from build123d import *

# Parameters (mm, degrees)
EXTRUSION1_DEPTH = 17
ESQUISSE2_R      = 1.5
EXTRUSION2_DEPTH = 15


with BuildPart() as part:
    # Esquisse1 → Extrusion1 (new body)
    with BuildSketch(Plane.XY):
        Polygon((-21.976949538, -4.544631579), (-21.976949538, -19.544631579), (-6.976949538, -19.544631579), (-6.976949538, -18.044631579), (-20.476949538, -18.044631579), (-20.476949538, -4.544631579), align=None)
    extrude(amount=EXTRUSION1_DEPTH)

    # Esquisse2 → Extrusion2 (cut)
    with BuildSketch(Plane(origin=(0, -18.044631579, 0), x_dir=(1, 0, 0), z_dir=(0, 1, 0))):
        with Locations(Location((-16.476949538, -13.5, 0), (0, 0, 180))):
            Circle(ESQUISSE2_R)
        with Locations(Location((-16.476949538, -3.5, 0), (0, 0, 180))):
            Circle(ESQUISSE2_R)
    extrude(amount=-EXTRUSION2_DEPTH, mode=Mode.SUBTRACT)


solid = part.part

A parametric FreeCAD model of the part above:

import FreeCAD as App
import Part
import Sketcher
from FreeCAD import Vector

doc = App.newDocument("Part")
body = doc.addObject("PartDesign::Body", "Body")

sketch1 = body.newObject("Sketcher::SketchObject", "Sketch")
sketch1.AttachmentSupport = (doc.getObject("XY_Plane"), [""])
sketch1.MapMode = "FlatFace"
sketch1.addGeometry([
    Part.LineSegment(Vector(-22, -4.5, 0), Vector(-22, -19.5, 0)),
    Part.LineSegment(Vector(-22, -19.5, 0), Vector(-7, -19.5, 0)),
    Part.LineSegment(Vector(-7, -19.5, 0), Vector(-7, -18, 0)),
    Part.LineSegment(Vector(-7, -18, 0), Vector(-20.5, -18, 0)),
    Part.LineSegment(Vector(-20.5, -18, 0), Vector(-20.5, -4.5, 0)),
    Part.LineSegment(Vector(-20.5, -4.5, 0), Vector(-22, -4.5, 0)),
], False)
sketch1.addConstraint([
    Sketcher.Constraint("Coincident", 0, 2, 1, 1),
    Sketcher.Constraint("Coincident", 1, 2, 2, 1),
    Sketcher.Constraint("Coincident", 2, 2, 3, 1),
    Sketcher.Constraint("Coincident", 3, 2, 4, 1),
    Sketcher.Constraint("Coincident", 4, 2, 5, 1),
    Sketcher.Constraint("Coincident", 5, 2, 0, 1),
    Sketcher.Constraint("Vertical", 0),
    Sketcher.Constraint("Horizontal", 1),
    Sketcher.Constraint("Vertical", 2),
    Sketcher.Constraint("Horizontal", 3),
    Sketcher.Constraint("Vertical", 4),
    Sketcher.Constraint("Horizontal", 5),
    Sketcher.Constraint("Equal", 1, 0),
    Sketcher.Constraint("Equal", 5, 2),
    Sketcher.Constraint("DistanceX", 1, 1, 1, 2, 15.0),
    Sketcher.Constraint("DistanceX", 3, 2, 3, 1, 13.5),
    Sketcher.Constraint("DistanceX", 0, 2, -1, 1, 21.97695),
    Sketcher.Constraint("DistanceY", 0, 2, -1, 1, 19.544632),
])
pad1 = body.newObject("PartDesign::Pad", "Pad")
pad1.Profile = sketch1
pad1.Length = 17

sketch2 = body.newObject("Sketcher::SketchObject", "Sketch001")
sketch2.AttachmentSupport = (doc.getObject("XZ_Plane"), [""])
sketch2.MapMode = "FlatFace"
sketch2.AttachmentOffset = App.Placement(Vector(0, 0, 18.044632), App.Rotation())
sketch2.addGeometry([
    Part.Circle(Vector(-16.5, 13.5, 0), Vector(0, 0, 1), 1.5),
    Part.Circle(Vector(-16.5, 3.5, 0), Vector(0, 0, 1), 1.5),
], False)
sketch2.addConstraint([
    Sketcher.Constraint("Equal", 0, 1),
    Sketcher.Constraint("Vertical", 0, 3, 1, 3),
    Sketcher.Constraint("Diameter", 0, 3.0),
    Sketcher.Constraint("DistanceY", 1, 3, 0, 3, 10.0),
    Sketcher.Constraint("DistanceY", -1, 1, 0, 3, 13.5),
    Sketcher.Constraint("DistanceX", 0, 3, -1, 1, 16.47695),
])
pocket1 = body.newObject("PartDesign::Pocket", "Pocket")
pocket1.Profile = sketch2
pocket1.Length = 15
pocket1.Reversed = True

doc.recompute()
